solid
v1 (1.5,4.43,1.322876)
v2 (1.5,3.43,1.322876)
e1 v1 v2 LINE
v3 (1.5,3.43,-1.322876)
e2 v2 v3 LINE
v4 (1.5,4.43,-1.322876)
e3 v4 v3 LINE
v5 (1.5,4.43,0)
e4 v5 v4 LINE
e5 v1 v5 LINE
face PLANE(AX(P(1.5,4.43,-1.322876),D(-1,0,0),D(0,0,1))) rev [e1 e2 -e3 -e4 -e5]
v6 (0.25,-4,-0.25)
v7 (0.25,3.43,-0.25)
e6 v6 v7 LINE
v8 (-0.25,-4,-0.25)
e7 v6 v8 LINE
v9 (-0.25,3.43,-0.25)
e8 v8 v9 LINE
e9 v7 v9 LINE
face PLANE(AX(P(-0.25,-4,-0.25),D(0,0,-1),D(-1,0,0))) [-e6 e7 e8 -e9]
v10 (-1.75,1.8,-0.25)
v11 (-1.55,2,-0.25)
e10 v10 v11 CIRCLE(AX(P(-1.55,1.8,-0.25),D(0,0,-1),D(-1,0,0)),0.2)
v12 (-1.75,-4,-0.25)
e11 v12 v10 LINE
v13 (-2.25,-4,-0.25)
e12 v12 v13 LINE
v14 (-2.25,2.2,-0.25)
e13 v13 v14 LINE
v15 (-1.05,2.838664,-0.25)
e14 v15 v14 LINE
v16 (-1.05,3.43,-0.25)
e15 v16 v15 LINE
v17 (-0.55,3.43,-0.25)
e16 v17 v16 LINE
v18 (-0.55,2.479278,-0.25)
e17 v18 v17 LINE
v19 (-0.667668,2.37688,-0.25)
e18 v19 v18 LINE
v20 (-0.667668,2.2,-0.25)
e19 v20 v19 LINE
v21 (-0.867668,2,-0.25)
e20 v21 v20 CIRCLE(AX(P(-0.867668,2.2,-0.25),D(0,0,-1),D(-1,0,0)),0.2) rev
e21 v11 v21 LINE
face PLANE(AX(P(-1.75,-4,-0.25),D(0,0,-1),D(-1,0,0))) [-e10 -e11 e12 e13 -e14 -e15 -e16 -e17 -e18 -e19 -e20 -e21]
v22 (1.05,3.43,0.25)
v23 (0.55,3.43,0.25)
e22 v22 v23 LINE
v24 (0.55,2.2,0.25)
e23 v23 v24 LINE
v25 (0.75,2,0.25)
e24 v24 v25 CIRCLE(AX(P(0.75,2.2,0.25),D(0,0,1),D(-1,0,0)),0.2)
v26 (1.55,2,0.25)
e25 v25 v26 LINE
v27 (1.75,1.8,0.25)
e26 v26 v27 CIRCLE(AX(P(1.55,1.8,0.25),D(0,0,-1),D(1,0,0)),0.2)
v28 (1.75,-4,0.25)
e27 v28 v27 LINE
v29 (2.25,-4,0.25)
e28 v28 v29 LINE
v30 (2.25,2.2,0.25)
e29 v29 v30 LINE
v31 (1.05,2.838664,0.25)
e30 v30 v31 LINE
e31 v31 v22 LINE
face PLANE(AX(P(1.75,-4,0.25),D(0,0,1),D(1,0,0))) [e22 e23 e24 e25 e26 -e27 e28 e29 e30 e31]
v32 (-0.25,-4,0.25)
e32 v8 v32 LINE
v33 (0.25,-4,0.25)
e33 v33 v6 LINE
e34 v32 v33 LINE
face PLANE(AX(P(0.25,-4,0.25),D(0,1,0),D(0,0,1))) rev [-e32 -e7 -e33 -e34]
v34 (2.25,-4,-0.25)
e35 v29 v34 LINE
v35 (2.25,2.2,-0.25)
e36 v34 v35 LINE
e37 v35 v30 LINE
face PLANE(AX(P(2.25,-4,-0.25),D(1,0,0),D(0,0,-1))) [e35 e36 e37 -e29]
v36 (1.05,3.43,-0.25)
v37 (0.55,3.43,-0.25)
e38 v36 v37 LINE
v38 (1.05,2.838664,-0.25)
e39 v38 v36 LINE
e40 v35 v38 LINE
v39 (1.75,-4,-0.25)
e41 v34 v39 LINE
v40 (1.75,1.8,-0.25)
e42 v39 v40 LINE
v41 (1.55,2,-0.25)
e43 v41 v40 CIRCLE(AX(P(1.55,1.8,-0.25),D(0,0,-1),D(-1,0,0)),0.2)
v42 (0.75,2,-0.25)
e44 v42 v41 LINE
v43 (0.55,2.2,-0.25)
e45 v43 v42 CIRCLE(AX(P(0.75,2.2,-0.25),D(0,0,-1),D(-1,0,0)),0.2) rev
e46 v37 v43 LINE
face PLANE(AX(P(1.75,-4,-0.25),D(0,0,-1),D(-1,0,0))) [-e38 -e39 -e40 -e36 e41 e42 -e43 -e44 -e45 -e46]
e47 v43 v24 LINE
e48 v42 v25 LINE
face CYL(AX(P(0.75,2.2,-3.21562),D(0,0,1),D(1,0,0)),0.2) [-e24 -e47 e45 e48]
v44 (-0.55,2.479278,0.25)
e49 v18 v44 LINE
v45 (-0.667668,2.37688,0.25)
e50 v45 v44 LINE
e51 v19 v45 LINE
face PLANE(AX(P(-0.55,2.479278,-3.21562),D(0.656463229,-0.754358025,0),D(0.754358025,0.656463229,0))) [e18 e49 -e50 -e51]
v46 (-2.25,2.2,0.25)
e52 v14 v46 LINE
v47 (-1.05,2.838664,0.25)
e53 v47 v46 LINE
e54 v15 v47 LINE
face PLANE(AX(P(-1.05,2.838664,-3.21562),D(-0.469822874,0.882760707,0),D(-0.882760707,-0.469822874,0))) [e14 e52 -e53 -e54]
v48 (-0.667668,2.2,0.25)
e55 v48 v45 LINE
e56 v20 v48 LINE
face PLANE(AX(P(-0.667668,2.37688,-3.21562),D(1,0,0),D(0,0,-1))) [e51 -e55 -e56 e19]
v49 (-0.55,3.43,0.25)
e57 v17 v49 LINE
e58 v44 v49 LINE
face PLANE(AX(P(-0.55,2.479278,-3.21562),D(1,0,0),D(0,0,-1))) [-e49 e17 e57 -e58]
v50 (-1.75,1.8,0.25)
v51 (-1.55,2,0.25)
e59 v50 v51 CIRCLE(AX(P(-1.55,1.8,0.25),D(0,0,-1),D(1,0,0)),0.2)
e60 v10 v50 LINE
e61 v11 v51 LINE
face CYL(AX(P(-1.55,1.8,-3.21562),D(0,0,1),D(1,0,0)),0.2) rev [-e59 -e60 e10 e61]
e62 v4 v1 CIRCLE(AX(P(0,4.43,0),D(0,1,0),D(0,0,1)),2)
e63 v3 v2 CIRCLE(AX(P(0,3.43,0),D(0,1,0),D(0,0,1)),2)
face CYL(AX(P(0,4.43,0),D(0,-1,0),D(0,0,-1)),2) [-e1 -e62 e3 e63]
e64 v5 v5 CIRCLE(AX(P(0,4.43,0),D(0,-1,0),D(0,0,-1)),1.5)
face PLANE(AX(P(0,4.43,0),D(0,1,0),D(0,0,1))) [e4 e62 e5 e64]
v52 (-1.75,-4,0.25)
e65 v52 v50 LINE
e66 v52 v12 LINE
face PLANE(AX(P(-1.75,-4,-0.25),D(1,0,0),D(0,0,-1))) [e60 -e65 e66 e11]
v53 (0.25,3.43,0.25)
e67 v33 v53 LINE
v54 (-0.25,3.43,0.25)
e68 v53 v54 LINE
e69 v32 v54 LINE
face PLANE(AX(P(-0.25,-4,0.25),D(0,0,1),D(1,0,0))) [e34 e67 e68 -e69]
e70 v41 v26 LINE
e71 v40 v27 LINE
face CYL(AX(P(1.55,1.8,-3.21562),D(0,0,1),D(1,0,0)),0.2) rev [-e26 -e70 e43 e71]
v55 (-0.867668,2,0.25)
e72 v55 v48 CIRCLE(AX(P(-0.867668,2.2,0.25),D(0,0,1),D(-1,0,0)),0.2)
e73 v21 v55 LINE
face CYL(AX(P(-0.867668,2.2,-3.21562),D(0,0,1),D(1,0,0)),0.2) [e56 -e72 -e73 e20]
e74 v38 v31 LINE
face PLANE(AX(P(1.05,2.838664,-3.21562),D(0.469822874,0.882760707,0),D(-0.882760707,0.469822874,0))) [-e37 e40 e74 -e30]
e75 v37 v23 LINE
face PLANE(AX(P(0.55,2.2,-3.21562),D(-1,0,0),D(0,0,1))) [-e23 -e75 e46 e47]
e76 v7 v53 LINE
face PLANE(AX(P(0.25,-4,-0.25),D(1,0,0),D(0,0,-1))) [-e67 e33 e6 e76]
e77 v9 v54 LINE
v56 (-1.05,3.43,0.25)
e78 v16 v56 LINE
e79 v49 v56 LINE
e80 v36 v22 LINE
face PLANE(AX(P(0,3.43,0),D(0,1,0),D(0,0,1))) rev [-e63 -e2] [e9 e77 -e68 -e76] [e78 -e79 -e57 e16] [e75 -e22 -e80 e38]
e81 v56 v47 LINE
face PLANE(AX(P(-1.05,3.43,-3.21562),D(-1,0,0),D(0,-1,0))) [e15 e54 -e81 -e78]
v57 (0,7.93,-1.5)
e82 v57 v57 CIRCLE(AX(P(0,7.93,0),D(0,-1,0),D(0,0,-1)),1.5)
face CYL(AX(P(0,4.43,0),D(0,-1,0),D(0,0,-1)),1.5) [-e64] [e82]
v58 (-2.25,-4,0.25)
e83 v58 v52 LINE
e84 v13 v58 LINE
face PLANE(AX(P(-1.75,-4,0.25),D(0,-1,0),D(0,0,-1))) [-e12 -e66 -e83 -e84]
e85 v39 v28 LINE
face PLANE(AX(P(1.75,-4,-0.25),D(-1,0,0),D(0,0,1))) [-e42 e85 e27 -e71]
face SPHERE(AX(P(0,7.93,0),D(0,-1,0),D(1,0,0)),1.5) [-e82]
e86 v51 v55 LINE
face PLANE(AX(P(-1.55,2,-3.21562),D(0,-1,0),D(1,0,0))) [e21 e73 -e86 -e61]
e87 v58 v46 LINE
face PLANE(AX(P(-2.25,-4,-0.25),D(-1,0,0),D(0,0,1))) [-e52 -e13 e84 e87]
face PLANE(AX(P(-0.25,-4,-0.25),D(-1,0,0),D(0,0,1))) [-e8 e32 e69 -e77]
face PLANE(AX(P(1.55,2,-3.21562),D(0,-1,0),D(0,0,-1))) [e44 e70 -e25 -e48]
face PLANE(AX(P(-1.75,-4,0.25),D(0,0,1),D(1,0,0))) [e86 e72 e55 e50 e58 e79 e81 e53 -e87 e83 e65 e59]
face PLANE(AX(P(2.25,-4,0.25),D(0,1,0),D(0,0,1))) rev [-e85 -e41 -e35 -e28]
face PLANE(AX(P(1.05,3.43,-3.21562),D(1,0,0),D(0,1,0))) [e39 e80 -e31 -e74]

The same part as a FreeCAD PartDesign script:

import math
import FreeCAD as App
import Part
import Sketcher

V = App.Vector
Q = App.Units.Quantity


def add_polygon(sketch, points):
    """Adds a closed chain of lines whose ends are joined by coincident constraints."""
    first, n = sketch.GeometryCount, len(points)
    for a, b in zip(points, points[1:] + points[:1]):
        sketch.addGeometry(Part.LineSegment(App.Vector(*a, 0), App.Vector(*b, 0)), False)
    for i in range(n):
        sketch.addConstraint(Sketcher.Constraint("Coincident", first + i, 2, first + (i + 1) % n, 1))

doc = App.newDocument("Part")
params = doc.addObject("Spreadsheet::Sheet", "Params")
for row, (alias, value) in enumerate([
    ("sketch1_width", "0.5 mm"),
    ("pad1_length", "1 mm"),
    ("pad1_length2", "4 mm"),
    ("sketch2_width", "0.5 mm"),
    ("pad2_length", "1 mm"),
    ("pad2_length2", "4 mm"),
    ("sketch3_width", "0.5 mm"),
    ("pad3_length", "1 mm"),
    ("pad3_length2", "4 mm"),
    ("sketch4_radius", "0.2 mm"),
    ("sketch4_width", "0.5 mm"),
    ("sketch4_width2", "0.8 mm"),
    ("sketch4_height", "2.43 mm"),
    ("pad4_length", "0.5 mm"),
    ("sketch5_radius", "2 mm"),
    ("pad5_length", "1 mm"),
    ("sketch6_radius", "1.5 mm"),
    ("sketch6_height", "5 mm"),
    ("revolution_angle", "360 deg"),
], start=1):
    params.set(f"A{row}", alias)
    params.set(f"B{row}", "=" + value)
    params.setAlias(f"B{row}", alias)

body = doc.addObject("PartDesign::Body", "Body")

# Sketch on XZ plane
sketch1 = body.newObject("Sketcher::SketchObject", "Sketch")
sketch1.AttachmentSupport = (doc.getObject("XZ_Plane"), [""])
sketch1.MapMode = "FlatFace"
add_polygon(sketch1, [(-0.2, -0.2), (-0.2, 0.2), (0.2, 0.2), (0.2, -0.2)])  # lines 0-3
sketch1.addConstraint([
    Sketcher.Constraint("Vertical", 0),
    Sketcher.Constraint("Horizontal", 1),
    Sketcher.Constraint("Vertical", 2),
    Sketcher.Constraint("Horizontal", 3),
    Sketcher.Constraint("Symmetric", 0, 2, 2, 2, -1, 1),
    Sketcher.Constraint("Equal", 3, 0),
    Sketcher.Constraint("DistanceX", 1, 1, 1, 2, Q("0.5 mm")),
])
sketch1.setExpression("Constraints[10]", "Params.sketch1_width")
pad1 = body.newObject("PartDesign::Pad", "Pad")
pad1.Profile = sketch1
pad1.Type = "TwoLengths"
pad1.setExpression("Length", "Params.pad1_length")
pad1.setExpression("Length2", "Params.pad1_length2")
pad1.Reversed = True
body2 = doc.addObject("PartDesign::Body", "Body001")

# Sketch on XZ plane
sketch2 = body2.newObject("Sketcher::SketchObject", "Sketch001")
sketch2.AttachmentSupport = (doc.getObject("XZ_Plane001"), [""])
sketch2.MapMode = "FlatFace"
add_polygon(sketch2, [(1.8, -0.2), (1.8, 0.2), (2.2, 0.2), (2.2, -0.2)])  # lines 0-3
sketch2.addConstraint([
    Sketcher.Constraint("Vertical", 0),
    Sketcher.Constraint("Horizontal", 1),
    Sketcher.Constraint("Vertical", 2),
    Sketcher.Constraint("Horizontal", 3),
    Sketcher.Constraint("Equal", 3, 0),
    Sketcher.Constraint("DistanceX", 1, 1, 1, 2, Q("0.5 mm")),
    Sketcher.Constraint("DistanceX", -1, 1, 0, 2, Q("1.75 mm")),
    Sketcher.Constraint("DistanceY", -1, 1, 0, 2, Q("0.25 mm")),
])
sketch2.setExpression("Constraints[9]", "Params.sketch2_width")
pad2 = body2.newObject("PartDesign::Pad", "Pad001")
pad2.Profile = sketch2
pad2.Type = "TwoLengths"
pad2.setExpression("Length", "Params.pad2_length")
pad2.setExpression("Length2", "Params.pad2_length2")
pad2.Reversed = True
body3 = doc.addObject("PartDesign::Body", "Body002")

# Sketch on XZ plane
sketch3 = body3.newObject("Sketcher::SketchObject", "Sketch002")
sketch3.AttachmentSupport = (doc.getObject("XZ_Plane002"), [""])
sketch3.MapMode = "FlatFace"
add_polygon(sketch3, [(-2.2, -0.2), (-2.2, 0.2), (-1.8, 0.2), (-1.8, -0.2)])  # lines 0-3
sketch3.addConstraint([
    Sketcher.Constraint("Vertical", 0),
    Sketcher.Constraint("Horizontal", 1),
    Sketcher.Constraint("Vertical", 2),
    Sketcher.Constraint("Horizontal", 3),
    Sketcher.Constraint("Equal", 3, 0),
    Sketcher.Constraint("DistanceX", 1, 1, 1, 2, Q("0.5 mm")),
    Sketcher.Constraint("DistanceX", 0, 2, -1, 1, Q("2.25 mm")),
    Sketcher.Constraint("DistanceY", -1, 1, 0, 2, Q("0.25 mm")),
])
sketch3.setExpression("Constraints[9]", "Params.sketch3_width")
pad3 = body3.newObject("PartDesign::Pad", "Pad002")
pad3.Profile = sketch3
pad3.Type = "TwoLengths"
pad3.setExpression("Length", "Params.pad3_length")
pad3.setExpression("Length2", "Params.pad3_length2")
pad3.Reversed = True
body.AllowCompound = True
doc.recompute()

boolean = body.newObject("PartDesign::Boolean", "Boolean")
boolean.Type = "Fuse"
boolean.addObjects([body2])
doc.recompute()

boolean2 = body.newObject("PartDesign::Boolean", "Boolean001")
boolean2.Type = "Fuse"
boolean2.addObjects([body3])

# Sketch on XY plane
sketch4 = body.newObject("Sketcher::SketchObject", "Sketch003")
sketch4.AttachmentSupport = (doc.getObject("XY_Plane"), [""])
sketch4.MapMode = "FlatFace"
sketch4.AttachmentOffset = App.Placement(V(0, 0, 0.25), App.Rotation())
sketch4.addGeometry(Part.LineSegment(V(-2.25, 2.2, 0), V(-2.25, 1, 0)), False)  # 0
sketch4.addGeometry(Part.LineSegment(V(-2.25, 1, 0), V(-1.75, 1, 0)), False)  # 1
sketch4.addGeometry(Part.LineSegment(V(-1.75, 1, 0), V(-1.75, 1.8, 0)), False)  # 2
sketch4.addGeometry(Part.ArcOfCircle(Part.Circle(V(-1.55, 1.8, 0), V(0, 0, 1), 0.2), math.radians(90), math.radians(180)), False)  # 3
sketch4.addGeometry(Part.LineSegment(V(-1.55, 2, 0), V(-0.87, 2, 0)), False)  # 4
sketch4.addGeometry(Part.ArcOfCircle(Part.Circle(V(-0.87, 2.2, 0), V(0, 0, 1), 0.2), math.radians(-90), math.radians(0)), False)  # 5
sketch4.addGeometry(Part.LineSegment(V(-0.67, 2.2, 0), V(-0.67, 2.38, 0)), False)  # 6
sketch4.addGeometry(Part.LineSegment(V(-0.67, 2.38, 0), V(-0.55, 2.48, 0)), False)  # 7
sketch4.addGeometry(Part.LineSegment(V(-0.55, 2.48, 0), V(-0.55, 3.43, 0)), False)  # 8
sketch4.addGeometry(Part.LineSegment(V(-0.55, 3.43, 0), V(-1.05, 3.43, 0)), False)  # 9
sketch4.addGeometry(Part.LineSegment(V(-1.05, 3.43, 0), V(-1.05, 2.84, 0)), False)  # 10
sketch4.addGeometry(Part.LineSegment(V(-1.05, 2.84, 0), V(-2.25, 2.2, 0)), False)  # 11
add_polygon(sketch4, [(-0.25, 3.43), (-0.25, 1), (0.25, 1), (0.25, 3.43)])  # lines 12-15
sketch4.addGeometry(Part.LineSegment(V(1.75, 1.8, 0), V(1.75, 1, 0)), False)  # 16
sketch4.addGeometry(Part.LineSegment(V(1.75, 1, 0), V(2.25, 1, 0)), False)  # 17
sketch4.addGeometry(Part.LineSegment(V(2.25, 1, 0), V(2.25, 2.2, 0)), False)  # 18
sketch4.addGeometry(Part.LineSegment(V(2.25, 2.2, 0), V(1.05, 2.84, 0)), False)  # 19
sketch4.addGeometry(Part.LineSegment(V(1.05, 2.84, 0), V(1.05, 3.43, 0)), False)  # 20
sketch4.addGeometry(Part.LineSegment(V(1.05, 3.43, 0), V(0.55, 3.43, 0)), False)  # 21
sketch4.addGeometry(Part.LineSegment(V(0.55, 3.43, 0), V(0.55, 2.2, 0)), False)  # 22
sketch4.addGeometry(Part.ArcOfCircle(Part.Circle(V(0.75, 2.2, 0), V(0, 0, 1), 0.2), math.radians(-180), math.radians(-90)), False)  # 23
sketch4.addGeometry(Part.LineSegment(V(0.75, 2, 0), V(1.55, 2, 0)), False)  # 24
sketch4.addGeometry(Part.ArcOfCircle(Part.Circle(V(1.55, 1.8, 0), V(0, 0, 1), 0.2), math.radians(0), math.radians(90)), False)  # 25
sketch4.addConstraint([
    Sketcher.Constraint("Coincident", 0, 2, 1, 1),
    Sketcher.Constraint("Coincident", 1, 2, 2, 1),
    Sketcher.Constraint("Tangent", 2, 2, 3, 2),
    Sketcher.Constraint("Tangent", 3, 1, 4, 1),
    Sketcher.Constraint("Tangent", 4, 2, 5, 1),
    Sketcher.Constraint("Tangent", 5, 2, 6, 1),
    Sketcher.Constraint("Coincident", 6, 2, 7, 1),
    Sketcher.Constraint("Coincident", 7, 2, 8, 1),
    Sketcher.Constraint("Coincident", 8, 2, 9, 1),
    Sketcher.Constraint("Coincident", 9, 2, 10, 1),
    Sketcher.Constraint("Coincident", 10, 2, 11, 1),
    Sketcher.Constraint("Coincident", 11, 2, 0, 1),
    Sketcher.Constraint("Coincident", 16, 2, 17, 1),
    Sketcher.Constraint("Coincident", 17, 2, 18, 1),
    Sketcher.Constraint("Coincident", 18, 2, 19, 1),
    Sketcher.Constraint("Coincident", 19, 2, 20, 1),
    Sketcher.Constraint("Coincident", 20, 2, 21, 1),
    Sketcher.Constraint("Coincident", 21, 2, 22, 1),
    Sketcher.Constraint("Tangent", 22, 2, 23, 1),
    Sketcher.Constraint("Tangent", 23, 2, 24, 1),
    Sketcher.Constraint("Tangent", 24, 2, 25, 2),
    Sketcher.Constraint("Tangent", 25, 1, 16, 1),
    Sketcher.Constraint("Vertical", 0),
    Sketcher.Constraint("Horizontal", 1),
    Sketcher.Constraint("Vertical", 2),
    Sketcher.Constraint("Horizontal", 4),
    Sketcher.Constraint("Vertical", 6),
    Sketcher.Constraint("Vertical", 8),
    Sketcher.Constraint("Horizontal", 9),
    Sketcher.Constraint("Vertical", 10),
    Sketcher.Constraint("Vertical", 12),
    Sketcher.Constraint("Horizontal", 13),
    Sketcher.Constraint("Vertical", 14),
    Sketcher.Constraint("Horizontal", 15),
    Sketcher.Constraint("Vertical", 16),
    Sketcher.Constraint("Horizontal", 17),
    Sketcher.Constraint("Vertical", 18),
    Sketcher.Constraint("Vertical", 20),
    Sketcher.Constraint("Horizontal", 21),
    Sketcher.Constraint("Vertical", 22),
    Sketcher.Constraint("Horizontal", 24),
    Sketcher.Constraint("Equal", 3, 5),
    Sketcher.Constraint("Equal", 5, 23),
    Sketcher.Constraint("Equal", 23, 25),
    Sketcher.Constraint("Symmetric", 3, 3, 25, 3, -2),
    Sketcher.Constraint("Symmetric", 0, 2, 17, 2, -2),
    Sketcher.Constraint("Symmetric", 10, 2, 19, 2, -2),
    Sketcher.Constraint("Symmetric", 8, 2, 21, 2, -2),
    Sketcher.Constraint("Horizontal", 5, 2, 11, 2),
    Sketcher.Constraint("Horizontal", 1, 2, 12, 2),
    Sketcher.Constraint("Horizontal", 9, 2, 14, 2),
    Sketcher.Constraint("Horizontal", 11, 2, 18, 2),
    Sketcher.Constraint("Equal", 1, 9),
    Sketcher.Constraint("Equal", 9, 13),
    Sketcher.Constraint("Equal", 24, 2),
    Sketcher.Constraint("Radius", 3, Q("0.2 mm")),
    Sketcher.Constraint("DistanceX", 1, 1, 1, 2, Q("0.5 mm")),
    Sketcher.Constraint("DistanceX", 24, 1, 24, 2, Q("0.8 mm")),
    Sketcher.Constraint("DistanceY", -1, 1, 0, 2, Q("1 mm")),
    Sketcher.Constraint("DistanceX", 0, 2, 23, 3, Q("3 mm")),
    Sketcher.Constraint("DistanceX", 12, 2, 16, 2, Q("2 mm")),
    Sketcher.Constraint("DistanceY", 12, 2, 12, 1, Q("2.43 mm")),
    Sketcher.Constraint("DistanceY", 6, 1, 6, 2, Q("0.17688 mm")),
    Sketcher.Constraint("Distance", 11, Q("1.359372 mm")),
    Sketcher.Constraint("DistanceX", 4, 1, 4, 2, Q("0.682332 mm")),
    Sketcher.Constraint("DistanceY", 8, 1, 8, 2, Q("0.950722 mm")),
])
sketch4.setExpression("Constraints[59]", "Params.sketch4_radius")
sketch4.setExpression("Constraints[60]", "Params.sketch4_width")
sketch4.setExpression("Constraints[61]", "Params.sketch4_width2")
sketch4.setExpression("Constraints[65]", "Params.sketch4_height")
pad4 = body.newObject("PartDesign::Pad", "Pad003")
pad4.Profile = sketch4
pad4.setExpression("Length", "Params.pad4_length")
pad4.Reversed = True

# Sketch on XZ plane
sketch5 = body.newObject("Sketcher::SketchObject", "Sketch004")
sketch5.AttachmentSupport = (doc.getObject("XZ_Plane"), [""])
sketch5.MapMode = "FlatFace"
sketch5.AttachmentOffset = App.Placement(V(0, 0, -3.43), App.Rotation())
sketch5.addGeometry([
    Part.LineSegment(V(1.5, 1.3, 0), V(1.5, -1.3, 0)),
    Part.ArcOfCircle(Part.Circle(V(0, 0, 0), V(0, 0, 1), 2), math.radians(41), math.radians(319)),
], False)
sketch5.addConstraint([
    Sketcher.Constraint("Coincident", 0, 1, 1, 1),
    Sketcher.Constraint("Coincident", 1, 2, 0, 2),
    Sketcher.Constraint("Vertical", 0),
    Sketcher.Constraint("Coincident", 1, 3, -1, 1),
    Sketcher.Constraint("Radius", 1, Q("2 mm")),
    Sketcher.Constraint("DistanceX", -1, 1, 0, 1, Q("1.5 mm")),
])
sketch5.setExpression("Constraints[4]", "Params.sketch5_radius")
pad5 = body.newObject("PartDesign::Pad", "Pad004")
pad5.Profile = sketch5
pad5.setExpression("Length", "Params.pad5_length")
pad5.Reversed = True

# Sketch on XY plane
sketch6 = body.newObject("Sketcher::SketchObject", "Sketch005")
sketch6.AttachmentSupport = (doc.getObject("XY_Plane"), [""])
sketch6.MapMode = "FlatFace"
sketch6.addGeometry([
    Part.LineSegment(V(0, 4.4, 0), V(1.5, 4.4, 0)),
    Part.LineSegment(V(1.5, 4.4, 0), V(1.5, 7.9, 0)),
    Part.ArcOfCircle(Part.Circle(V(0, 7.9, 0), V(0, 0, 1), 1.5), math.radians(0), math.radians(90)),
    Part.LineSegment(V(0, 9.4, 0), V(0, 4.4, 0)),
], False)
sketch6.addConstraint([
    Sketcher.Constraint("Coincident", 0, 2, 1, 1),
    Sketcher.Constraint("Tangent", 1, 2, 2, 1),
    Sketcher.Constraint("Coincident", 2, 2, 3, 1),
    Sketcher.Constraint("Coincident", 3, 2, 0, 1),
    Sketcher.Constraint("Horizontal", 0),
    Sketcher.Constraint("Vertical", 1),
    Sketcher.Constraint("Vertical", 3),
    Sketcher.Constraint("PointOnObject", 2, 3, -2),
    Sketcher.Constraint("PointOnObject", 2, 2, -2),
    Sketcher.Constraint("Radius", 2, Q("1.5 mm")),
    Sketcher.Constraint("DistanceY", 3, 2, 3, 1, Q("5 mm")),
    Sketcher.Constraint("DistanceY", -1, 1, 2, 3, Q("7.93 mm")),
])
sketch6.setExpression("Constraints[9]", "Params.sketch6_radius")
sketch6.setExpression("Constraints[10]", "Params.sketch6_height")
revolution = body.newObject("PartDesign::Revolution", "Revolution")
revolution.Profile = sketch6
revolution.ReferenceAxis = (sketch6, ["V_Axis"])
revolution.setExpression("Angle", "Params.revolution_angle")

doc.recompute()
